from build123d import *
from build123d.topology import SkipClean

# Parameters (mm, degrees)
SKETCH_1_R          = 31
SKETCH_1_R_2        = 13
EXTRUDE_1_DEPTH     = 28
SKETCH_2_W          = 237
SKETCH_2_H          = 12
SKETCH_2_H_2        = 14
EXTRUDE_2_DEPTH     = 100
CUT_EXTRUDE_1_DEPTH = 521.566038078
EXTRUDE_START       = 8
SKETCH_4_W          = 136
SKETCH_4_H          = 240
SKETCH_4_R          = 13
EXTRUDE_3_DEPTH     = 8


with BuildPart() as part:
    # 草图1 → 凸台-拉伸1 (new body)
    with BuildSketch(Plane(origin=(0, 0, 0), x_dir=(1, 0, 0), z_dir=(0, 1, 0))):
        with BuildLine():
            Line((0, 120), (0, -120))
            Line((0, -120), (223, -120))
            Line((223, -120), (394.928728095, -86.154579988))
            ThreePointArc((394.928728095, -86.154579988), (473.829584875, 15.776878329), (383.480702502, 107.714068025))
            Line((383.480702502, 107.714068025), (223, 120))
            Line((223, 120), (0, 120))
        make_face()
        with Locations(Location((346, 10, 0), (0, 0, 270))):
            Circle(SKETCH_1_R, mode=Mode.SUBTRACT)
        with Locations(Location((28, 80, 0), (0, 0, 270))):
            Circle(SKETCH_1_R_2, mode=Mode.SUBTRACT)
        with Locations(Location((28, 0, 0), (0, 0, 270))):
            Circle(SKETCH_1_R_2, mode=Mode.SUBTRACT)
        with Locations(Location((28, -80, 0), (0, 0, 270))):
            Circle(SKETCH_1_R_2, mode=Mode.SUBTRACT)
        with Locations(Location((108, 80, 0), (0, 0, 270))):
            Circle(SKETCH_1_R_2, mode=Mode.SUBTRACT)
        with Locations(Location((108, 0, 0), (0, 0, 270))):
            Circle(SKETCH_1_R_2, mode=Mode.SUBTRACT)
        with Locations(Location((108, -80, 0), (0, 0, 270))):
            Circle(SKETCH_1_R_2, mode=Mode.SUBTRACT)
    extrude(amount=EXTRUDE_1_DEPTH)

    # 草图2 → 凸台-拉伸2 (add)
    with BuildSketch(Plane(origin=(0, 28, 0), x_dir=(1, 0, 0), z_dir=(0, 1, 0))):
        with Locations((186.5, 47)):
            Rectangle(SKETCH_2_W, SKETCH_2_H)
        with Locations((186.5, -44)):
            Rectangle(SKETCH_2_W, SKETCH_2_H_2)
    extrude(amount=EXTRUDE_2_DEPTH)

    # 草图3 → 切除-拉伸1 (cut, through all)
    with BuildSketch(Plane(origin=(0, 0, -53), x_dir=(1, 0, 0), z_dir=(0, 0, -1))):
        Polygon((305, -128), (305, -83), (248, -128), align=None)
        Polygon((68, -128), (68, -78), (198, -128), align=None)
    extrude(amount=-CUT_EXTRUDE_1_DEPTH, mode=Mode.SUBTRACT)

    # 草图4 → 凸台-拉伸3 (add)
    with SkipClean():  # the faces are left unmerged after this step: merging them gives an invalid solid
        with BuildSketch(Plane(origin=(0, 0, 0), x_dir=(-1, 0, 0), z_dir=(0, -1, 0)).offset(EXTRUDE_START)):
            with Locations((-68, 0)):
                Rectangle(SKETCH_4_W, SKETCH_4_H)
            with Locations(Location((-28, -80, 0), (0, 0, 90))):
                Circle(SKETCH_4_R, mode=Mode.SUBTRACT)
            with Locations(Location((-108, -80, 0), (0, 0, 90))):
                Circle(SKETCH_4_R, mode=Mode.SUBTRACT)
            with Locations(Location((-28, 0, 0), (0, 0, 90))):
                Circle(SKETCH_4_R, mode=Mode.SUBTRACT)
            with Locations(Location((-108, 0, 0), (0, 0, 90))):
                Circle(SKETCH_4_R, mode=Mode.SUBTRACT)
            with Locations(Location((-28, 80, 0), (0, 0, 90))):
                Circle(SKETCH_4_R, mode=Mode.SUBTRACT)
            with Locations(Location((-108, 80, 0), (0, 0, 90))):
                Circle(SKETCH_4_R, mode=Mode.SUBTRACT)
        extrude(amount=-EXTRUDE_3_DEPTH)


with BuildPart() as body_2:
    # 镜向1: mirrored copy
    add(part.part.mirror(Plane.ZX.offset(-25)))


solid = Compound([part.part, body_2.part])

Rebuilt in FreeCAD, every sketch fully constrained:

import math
import FreeCAD as App
import Part
import Sketcher

V = App.Vector
Q = App.Units.Quantity

doc = App.newDocument("Part")
body = doc.addObject("PartDesign::Body", "Body")

# Sketch on XZ plane
sketch1 = doc.addObject("Sketcher::SketchObject", "Sketch")
body.addObject(sketch1)
sketch1.AttachmentSupport = (doc.XZ_Plane, [""])
sketch1.MapMode = "FlatFace"
sketch1.addGeometry([
    Part.LineSegment(V(0, -120, 0), V(0, 120, 0)),  # 0
    Part.LineSegment(V(0, 120, 0), V(223, 120, 0)),  # 1
    Part.LineSegment(V(223, 120, 0), V(394.928728, 86.15458, 0)),  # 2
    Part.ArcOfCircle(Part.Circle(V(376, -10, 0), V(0, 0, 1), 98), math.radians(-85.622143), math.radians(78.863311)),  # 3
    Part.LineSegment(V(383.480703, -107.714068, 0), V(223, -120, 0)),  # 4
    Part.LineSegment(V(223, -120, 0), V(0, -120, 0)),  # 5
    Part.Circle(V(28, 80, 0), V(0, 0, 1), 13),  # 6
    Part.Circle(V(108, 80, 0), V(0, 0, 1), 13),  # 7
    Part.Circle(V(28, 0, 0), V(0, 0, 1), 13),  # 8
    Part.Circle(V(108, 0, 0), V(0, 0, 1), 13),  # 9
    Part.Circle(V(28, -80, 0), V(0, 0, 1), 13),  # 10
    Part.Circle(V(108, -80, 0), V(0, 0, 1), 13),  # 11
    Part.Circle(V(346, -10, 0), V(0, 0, 1), 31),  # 12
], False)
sketch1.addConstraint([
    Sketcher.Constraint("Coincident", 0, 2, 1, 1),
    Sketcher.Constraint("Coincident", 1, 2, 2, 1),
    Sketcher.Constraint("Tangent", 2, 2, 3, 2),
    Sketcher.Constraint("Tangent", 3, 1, 4, 1),
    Sketcher.Constraint("Coincident", 4, 2, 5, 1),
    Sketcher.Constraint("Coincident", 5, 2, 0, 1),
    Sketcher.Constraint("Vertical", 0),
    Sketcher.Constraint("Horizontal", 1),
    Sketcher.Constraint("Horizontal", 5),
    Sketcher.Constraint("Equal", 6, 7),
    Sketcher.Constraint("Equal", 7, 8),
    Sketcher.Constraint("Equal", 8, 9),
    Sketcher.Constraint("Equal", 9, 10),
    Sketcher.Constraint("Equal", 10, 11),
    Sketcher.Constraint("Symmetric", 0, 2, 5, 2, -1, 1),
    Sketcher.Constraint("Symmetric", 6, 3, 10, 3, -1),
    Sketcher.Constraint("Symmetric", 7, 3, 11, 3, -1),
    Sketcher.Constraint("PointOnObject", 8, 3, -1),
    Sketcher.Constraint("PointOnObject", 9, 3, -1),
    Sketcher.Constraint("Horizontal", 6, 3, 7, 3),
    Sketcher.Constraint("Horizontal", 3, 3, 12, 3),
    Sketcher.Constraint("Vertical", 6, 3, 8, 3),
    Sketcher.Constraint("Vertical", 7, 3, 9, 3),
    Sketcher.Constraint("Vertical", 1, 2, 4, 2),
    Sketcher.Constraint("Diameter", 6, Q("26 mm")),
    Sketcher.Constraint("Diameter", 12, Q("62 mm")),
    Sketcher.Constraint("Radius", 3, Q("98 mm")),
    Sketcher.Constraint("DistanceX", 1, 1, 1, 2, Q("223 mm")),
    Sketcher.Constraint("DistanceY", 0, 1, 0, 2, Q("240 mm")),
    Sketcher.Constraint("DistanceX", -1, 1, 3, 3, Q("376 mm")),
    Sketcher.Constraint("DistanceY", 3, 3, -1, 1, Q("10 mm")),
    Sketcher.Constraint("DistanceX", -1, 1, 6, 3, Q("28 mm")),
    Sketcher.Constraint("DistanceY", -1, 1, 6, 3, Q("80 mm")),
    Sketcher.Constraint("DistanceX", -1, 1, 7, 3, Q("108 mm")),
    Sketcher.Constraint("DistanceX", -1, 1, 12, 3, Q("346 mm")),
])
pad1 = doc.addObject("PartDesign::Pad", "Pad")
body.addObject(pad1)
pad1.Profile = sketch1
pad1.Length = 28
pad1.Reversed = True

# Sketch on XZ plane
sketch2 = doc.addObject("Sketcher::SketchObject", "Sketch001")
body.addObject(sketch2)
sketch2.AttachmentSupport = (doc.XZ_Plane, [""])
sketch2.MapMode = "FlatFace"
sketch2.AttachmentOffset = App.Placement(V(0, 0, -28), App.Rotation())
sketch2.addGeometry([
    Part.LineSegment(V(68, -53, 0), V(68, -41, 0)),  # 0
    Part.LineSegment(V(68, -41, 0), V(305, -41, 0)),  # 1
    Part.LineSegment(V(305, -41, 0), V(305, -53, 0)),  # 2
    Part.LineSegment(V(305, -53, 0), V(68, -53, 0)),  # 3
    Part.LineSegment(V(68, 37, 0), V(68, 51, 0)),  # 4
    Part.LineSegment(V(68, 51, 0), V(305, 51, 0)),  # 5
    Part.LineSegment(V(305, 51, 0), V(305, 37, 0)),  # 6
    Part.LineSegment(V(305, 37, 0), V(68, 37, 0)),  # 7
], False)
sketch2.addConstraint([
    Sketcher.Constraint("Coincident", 0, 2, 1, 1),
    Sketcher.Constraint("Coincident", 1, 2, 2, 1),
    Sketcher.Constraint("Coincident", 2, 2, 3, 1),
    Sketcher.Constraint("Coincident", 3, 2, 0, 1),
    Sketcher.Constraint("Coincident", 4, 2, 5, 1),
    Sketcher.Constraint("Coincident", 5, 2, 6, 1),
    Sketcher.Constraint("Coincident", 6, 2, 7, 1),
    Sketcher.Constraint("Coincident", 7, 2, 4, 1),
    Sketcher.Constraint("Vertical", 0),
    Sketcher.Constraint("Horizontal", 1),
    Sketcher.Constraint("Vertical", 2),
    Sketcher.Constraint("Horizontal", 3),
    Sketcher.Constraint("Vertical", 4),
    Sketcher.Constraint("Horizontal", 5),
    Sketcher.Constraint("Vertical", 6),
    Sketcher.Constraint("Horizontal", 7),
    Sketcher.Constraint("Vertical", 3, 2, 4, 2),
    Sketcher.Constraint("Vertical", 2, 2, 5, 2),
    Sketcher.Constraint("DistanceX", 1, 1, 1, 2, Q("237 mm")),
    Sketcher.Constraint("DistanceY", 0, 1, 0, 2, Q("12 mm")),
    Sketcher.Constraint("DistanceY", 4, 1, 4, 2, Q("14 mm")),
    Sketcher.Constraint("DistanceX", -1, 1, 0, 2, Q("68 mm")),
    Sketcher.Constraint("DistanceY", 0, 2, -1, 1, Q("41 mm")),
    Sketcher.Constraint("DistanceY", -1, 1, 4, 2, Q("51 mm")),
])
pad2 = doc.addObject("PartDesign::Pad", "Pad001")
body.addObject(pad2)
pad2.Profile = sketch2
pad2.Length = 100
pad2.Reversed = True

# Sketch on XY plane
sketch3 = doc.addObject("Sketcher::SketchObject", "Sketch002")
body.addObject(sketch3)
sketch3.AttachmentSupport = (doc.XY_Plane, [""])
sketch3.MapMode = "FlatFace"
sketch3.AttachmentOffset = App.Placement(V(0, 0, -53), App.Rotation())
sketch3.addGeometry([
    Part.LineSegment(V(305, 128, 0), V(305, 83, 0)),  # 0
    Part.LineSegment(V(305, 83, 0), V(248, 128, 0)),  # 1
    Part.LineSegment(V(248, 128, 0), V(305, 128, 0)),  # 2
    Part.LineSegment(V(68, 78, 0), V(68, 128, 0)),  # 3
    Part.LineSegment(V(68, 128, 0), V(198, 128, 0)),  # 4
    Part.LineSegment(V(198, 128, 0), V(68, 78, 0)),  # 5
], False)
sketch3.addConstraint([
    Sketcher.Constraint("Coincident", 0, 2, 1, 1),
    Sketcher.Constraint("Coincident", 1, 2, 2, 1),
    Sketcher.Constraint("Coincident", 2, 2, 0, 1),
    Sketcher.Constraint("Coincident", 3, 2, 4, 1),
    Sketcher.Constraint("Coincident", 4, 2, 5, 1),
    Sketcher.Constraint("Coincident", 5, 2, 3, 1),
    Sketcher.Constraint("Vertical", 0),
    Sketcher.Constraint("Horizontal", 2),
    Sketcher.Constraint("Vertical", 3),
    Sketcher.Constraint("Horizontal", 4),
    Sketcher.Constraint("Horizontal", 2, 2, 3, 2),
    Sketcher.Constraint("DistanceX", 2, 1, 2, 2, Q("57 mm")),
    Sketcher.Constraint("DistanceX", 4, 1, 4, 2, Q("130 mm")),
    Sketcher.Constraint("DistanceY", 0, 2, 0, 1, Q("45 mm")),
    Sketcher.Constraint("DistanceY", 3, 1, 3, 2, Q("50 mm")),
    Sketcher.Constraint("DistanceX", -1, 1, 0, 2, Q("305 mm")),
    Sketcher.Constraint("DistanceY", -1, 1, 0, 2, Q("83 mm")),
    Sketcher.Constraint("DistanceX", -1, 1, 3, 2, Q("68 mm")),
])
pocket1 = doc.addObject("PartDesign::Pocket", "Pocket")
body.addObject(pocket1)
pocket1.Profile = sketch3
pocket1.Type = "ThroughAll"
pocket1.Reversed = True

# Sketch on XZ plane
sketch4 = doc.addObject("Sketcher::SketchObject", "Sketch003")
body.addObject(sketch4)
sketch4.AttachmentSupport = (doc.XZ_Plane, [""])
sketch4.MapMode = "FlatFace"
sketch4.AttachmentOffset = App.Placement(V(0, 0, 8), App.Rotation())
sketch4.addGeometry([
    Part.LineSegment(V(136, -120, 0), V(136, 120, 0)),  # 0
    Part.LineSegment(V(136, 120, 0), V(0, 120, 0)),  # 1
    Part.LineSegment(V(0, 120, 0), V(0, -120, 0)),  # 2
    Part.LineSegment(V(0, -120, 0), V(136, -120, 0)),  # 3
    Part.Circle(V(108, 80, 0), V(0, 0, 1), 13),  # 4
    Part.Circle(V(28, 80, 0), V(0, 0, 1), 13),  # 5
    Part.Circle(V(108, 0, 0), V(0, 0, 1), 13),  # 6
    Part.Circle(V(108, -80, 0), V(0, 0, 1), 13),  # 7
    Part.Circle(V(28, 0, 0), V(0, 0, 1), 13),  # 8
    Part.Circle(V(28, -80, 0), V(0, 0, 1), 13),  # 9
], False)
sketch4.addConstraint([
    Sketcher.Constraint("Coincident", 0, 2, 1, 1),
    Sketcher.Constraint("Coincident", 1, 2, 2, 1),
    Sketcher.Constraint("Coincident", 2, 2, 3, 1),
    Sketcher.Constraint("Coincident", 3, 2, 0, 1),
    Sketcher.Constraint("Vertical", 0),
    Sketcher.Constraint("Horizontal", 1),
    Sketcher.Constraint("Vertical", 2),
    Sketcher.Constraint("Horizontal", 3),
    Sketcher.Constraint("Equal", 4, 5),
    Sketcher.Constraint("Equal", 5, 6),
    Sketcher.Constraint("Equal", 6, 7),
    Sketcher.Constraint("Equal", 7, 8),
    Sketcher.Constraint("Equal", 8, 9),
    Sketcher.Constraint("Symmetric", 1, 2, 2, 2, -1, 1),
    Sketcher.Constraint("Symmetric", 4, 3, 7, 3, -1),
    Sketcher.Constraint("Symmetric", 5, 3, 9, 3, -1),
    Sketcher.Constraint("PointOnObject", 6, 3, -1),
    Sketcher.Constraint("PointOnObject", 8, 3, -1),
    Sketcher.Constraint("Horizontal", 4, 3, 5, 3),
    Sketcher.Constraint("Vertical", 4, 3, 6, 3),
    Sketcher.Constraint("Vertical", 5, 3, 8, 3),
    Sketcher.Constraint("Diameter", 4, Q("26 mm")),
    Sketcher.Constraint("DistanceX", 1, 2, 1, 1, Q("136 mm")),
    Sketcher.Constraint("DistanceY", 0, 1, 0, 2, Q("240 mm")),
    Sketcher.Constraint("DistanceX", -1, 1, 4, 3, Q("108 mm")),
    Sketcher.Constraint("DistanceY", -1, 1, 4, 3, Q("80 mm")),
    Sketcher.Constraint("DistanceX", -1, 1, 5, 3, Q("28 mm")),
])
pad3 = doc.addObject("PartDesign::Pad", "Pad002")
body.addObject(pad3)
pad3.Profile = sketch4
pad3.Length = 8
pad3.Reversed = True
body2 = doc.addObject("PartDesign::Body", "Body001")
doc.recompute()

mirroring = doc.addObject("Part::Mirroring", "Mirroring")
mirroring.Source = body
mirroring.Base = V(0, -25, 0)
mirroring.Normal = V(0, 1, 0)
body2.BaseFeature = mirroring
doc.recompute()
mirroring.Visibility = False

doc.recompute()
